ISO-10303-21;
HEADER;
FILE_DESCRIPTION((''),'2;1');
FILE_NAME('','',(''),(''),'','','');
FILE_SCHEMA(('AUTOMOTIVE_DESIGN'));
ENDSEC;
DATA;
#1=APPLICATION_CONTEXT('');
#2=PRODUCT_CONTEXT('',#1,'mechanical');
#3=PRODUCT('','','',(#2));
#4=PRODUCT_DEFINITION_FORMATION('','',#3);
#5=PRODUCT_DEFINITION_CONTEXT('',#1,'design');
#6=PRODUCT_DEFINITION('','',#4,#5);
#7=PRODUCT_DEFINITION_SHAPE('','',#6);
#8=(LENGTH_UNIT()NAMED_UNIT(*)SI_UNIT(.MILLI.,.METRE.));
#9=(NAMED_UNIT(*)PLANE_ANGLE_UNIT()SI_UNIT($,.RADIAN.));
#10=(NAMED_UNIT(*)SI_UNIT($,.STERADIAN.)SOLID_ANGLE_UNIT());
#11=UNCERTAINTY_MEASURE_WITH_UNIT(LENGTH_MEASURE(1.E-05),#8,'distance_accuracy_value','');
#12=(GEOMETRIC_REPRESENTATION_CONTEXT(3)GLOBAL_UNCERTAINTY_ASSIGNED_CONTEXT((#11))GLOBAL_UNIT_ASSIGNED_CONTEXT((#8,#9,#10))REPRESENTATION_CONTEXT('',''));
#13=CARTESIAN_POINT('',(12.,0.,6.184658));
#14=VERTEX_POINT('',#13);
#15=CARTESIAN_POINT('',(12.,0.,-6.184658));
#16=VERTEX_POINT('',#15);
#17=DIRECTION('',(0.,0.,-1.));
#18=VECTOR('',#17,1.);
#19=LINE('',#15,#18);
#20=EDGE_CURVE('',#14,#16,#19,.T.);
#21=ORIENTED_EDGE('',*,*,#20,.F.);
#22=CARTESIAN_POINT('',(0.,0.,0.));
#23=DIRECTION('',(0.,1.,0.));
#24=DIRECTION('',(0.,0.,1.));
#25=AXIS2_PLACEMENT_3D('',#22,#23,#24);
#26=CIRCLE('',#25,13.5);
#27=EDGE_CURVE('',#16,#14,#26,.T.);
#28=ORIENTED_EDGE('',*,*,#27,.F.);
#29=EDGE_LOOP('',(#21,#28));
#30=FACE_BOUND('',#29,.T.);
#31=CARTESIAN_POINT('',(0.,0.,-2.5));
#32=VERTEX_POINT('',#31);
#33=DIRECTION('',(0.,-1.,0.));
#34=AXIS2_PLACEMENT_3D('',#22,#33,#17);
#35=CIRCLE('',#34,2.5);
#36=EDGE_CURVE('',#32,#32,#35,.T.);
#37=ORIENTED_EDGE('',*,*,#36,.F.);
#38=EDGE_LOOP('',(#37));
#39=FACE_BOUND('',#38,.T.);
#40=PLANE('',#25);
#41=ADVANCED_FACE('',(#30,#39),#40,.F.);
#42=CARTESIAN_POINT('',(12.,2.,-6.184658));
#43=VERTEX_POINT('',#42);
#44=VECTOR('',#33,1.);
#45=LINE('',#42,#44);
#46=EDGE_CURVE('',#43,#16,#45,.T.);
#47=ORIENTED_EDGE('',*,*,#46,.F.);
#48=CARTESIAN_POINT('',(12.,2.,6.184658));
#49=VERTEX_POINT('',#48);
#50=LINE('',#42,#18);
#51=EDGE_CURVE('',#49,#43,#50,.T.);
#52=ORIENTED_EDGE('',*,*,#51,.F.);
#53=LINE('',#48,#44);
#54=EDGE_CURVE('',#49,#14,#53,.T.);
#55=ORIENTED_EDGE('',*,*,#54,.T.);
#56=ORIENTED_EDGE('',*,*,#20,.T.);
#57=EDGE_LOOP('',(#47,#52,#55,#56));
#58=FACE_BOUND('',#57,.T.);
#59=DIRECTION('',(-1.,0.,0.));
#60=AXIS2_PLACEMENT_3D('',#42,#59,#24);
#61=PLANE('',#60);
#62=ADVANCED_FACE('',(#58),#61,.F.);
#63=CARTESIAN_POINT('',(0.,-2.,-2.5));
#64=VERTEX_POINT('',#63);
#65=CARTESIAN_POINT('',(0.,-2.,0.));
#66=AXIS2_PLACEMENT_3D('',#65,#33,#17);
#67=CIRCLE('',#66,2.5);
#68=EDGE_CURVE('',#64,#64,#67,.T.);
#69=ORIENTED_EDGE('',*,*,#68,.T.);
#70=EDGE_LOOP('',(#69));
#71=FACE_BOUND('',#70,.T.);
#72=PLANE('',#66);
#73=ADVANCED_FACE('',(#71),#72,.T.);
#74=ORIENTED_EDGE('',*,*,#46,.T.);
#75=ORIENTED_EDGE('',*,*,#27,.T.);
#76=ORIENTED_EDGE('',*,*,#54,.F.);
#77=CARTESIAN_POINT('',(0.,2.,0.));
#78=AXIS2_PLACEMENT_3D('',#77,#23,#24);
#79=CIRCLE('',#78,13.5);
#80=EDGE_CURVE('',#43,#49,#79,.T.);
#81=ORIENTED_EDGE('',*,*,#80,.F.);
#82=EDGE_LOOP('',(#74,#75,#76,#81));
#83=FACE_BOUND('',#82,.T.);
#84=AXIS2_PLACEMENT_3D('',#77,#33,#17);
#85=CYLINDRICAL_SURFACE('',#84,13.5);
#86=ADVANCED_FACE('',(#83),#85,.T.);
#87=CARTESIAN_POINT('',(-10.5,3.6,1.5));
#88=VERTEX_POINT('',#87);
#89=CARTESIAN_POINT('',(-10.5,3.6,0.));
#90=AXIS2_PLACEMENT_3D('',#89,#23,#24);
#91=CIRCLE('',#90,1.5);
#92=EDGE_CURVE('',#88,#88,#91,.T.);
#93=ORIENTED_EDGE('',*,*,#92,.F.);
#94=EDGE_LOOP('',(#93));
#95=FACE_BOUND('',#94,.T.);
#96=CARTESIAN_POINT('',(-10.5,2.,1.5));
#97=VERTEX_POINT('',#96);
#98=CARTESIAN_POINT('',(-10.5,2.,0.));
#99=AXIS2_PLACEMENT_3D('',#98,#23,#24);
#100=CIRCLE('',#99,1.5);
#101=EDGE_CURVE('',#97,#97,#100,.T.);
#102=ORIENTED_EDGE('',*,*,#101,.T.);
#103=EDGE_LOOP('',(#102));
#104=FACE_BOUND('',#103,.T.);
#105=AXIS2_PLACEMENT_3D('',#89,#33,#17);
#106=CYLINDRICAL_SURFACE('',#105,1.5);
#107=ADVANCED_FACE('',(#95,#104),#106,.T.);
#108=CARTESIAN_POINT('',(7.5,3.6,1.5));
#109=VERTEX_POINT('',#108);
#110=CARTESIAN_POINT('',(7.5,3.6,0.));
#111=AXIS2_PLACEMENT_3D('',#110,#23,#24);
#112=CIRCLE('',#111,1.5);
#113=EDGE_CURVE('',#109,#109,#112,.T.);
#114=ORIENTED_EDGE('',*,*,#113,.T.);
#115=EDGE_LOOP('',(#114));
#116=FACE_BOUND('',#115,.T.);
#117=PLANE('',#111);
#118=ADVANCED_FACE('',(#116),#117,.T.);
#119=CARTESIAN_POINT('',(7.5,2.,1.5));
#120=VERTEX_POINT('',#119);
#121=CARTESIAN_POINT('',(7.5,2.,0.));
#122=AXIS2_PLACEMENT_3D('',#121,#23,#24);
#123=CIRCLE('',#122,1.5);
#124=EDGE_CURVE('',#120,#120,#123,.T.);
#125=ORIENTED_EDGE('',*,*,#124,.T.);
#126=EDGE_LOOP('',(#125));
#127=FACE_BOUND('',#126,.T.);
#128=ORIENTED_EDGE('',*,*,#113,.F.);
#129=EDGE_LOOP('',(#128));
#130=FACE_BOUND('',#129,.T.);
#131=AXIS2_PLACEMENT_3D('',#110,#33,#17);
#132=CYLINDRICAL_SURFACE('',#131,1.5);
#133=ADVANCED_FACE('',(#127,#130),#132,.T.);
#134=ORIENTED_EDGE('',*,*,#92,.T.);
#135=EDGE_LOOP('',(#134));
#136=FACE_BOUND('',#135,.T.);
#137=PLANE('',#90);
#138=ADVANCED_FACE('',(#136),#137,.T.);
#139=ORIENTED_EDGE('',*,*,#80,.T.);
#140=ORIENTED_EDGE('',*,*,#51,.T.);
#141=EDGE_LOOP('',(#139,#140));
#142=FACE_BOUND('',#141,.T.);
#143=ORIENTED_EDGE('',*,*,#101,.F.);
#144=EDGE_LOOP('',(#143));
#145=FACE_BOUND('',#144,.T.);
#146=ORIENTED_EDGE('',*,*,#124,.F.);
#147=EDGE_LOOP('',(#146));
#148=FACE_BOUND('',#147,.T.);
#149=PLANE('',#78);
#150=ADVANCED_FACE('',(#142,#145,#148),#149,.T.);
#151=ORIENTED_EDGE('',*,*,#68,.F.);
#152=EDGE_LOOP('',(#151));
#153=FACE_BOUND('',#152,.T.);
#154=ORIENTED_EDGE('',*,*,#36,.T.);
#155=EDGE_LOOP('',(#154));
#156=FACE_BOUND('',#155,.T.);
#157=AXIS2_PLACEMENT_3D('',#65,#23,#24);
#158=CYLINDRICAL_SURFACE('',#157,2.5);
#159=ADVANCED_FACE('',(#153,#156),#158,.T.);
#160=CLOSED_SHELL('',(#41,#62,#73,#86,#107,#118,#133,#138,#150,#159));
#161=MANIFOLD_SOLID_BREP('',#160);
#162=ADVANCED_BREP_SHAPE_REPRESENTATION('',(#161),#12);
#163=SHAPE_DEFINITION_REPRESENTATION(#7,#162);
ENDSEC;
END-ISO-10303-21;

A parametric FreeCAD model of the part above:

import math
import FreeCAD as App
import Part
import Sketcher

V = App.Vector

doc = App.newDocument("Part")
body = doc.addObject("PartDesign::Body", "Body")

# Sketch on XZ plane
sketch1 = body.newObject("Sketcher::SketchObject", "Sketch")
sketch1.AttachmentSupport = (doc.getObject("XZ_Plane"), [""])
sketch1.MapMode = "FlatFace"
sketch1.addGeometry(Part.LineSegment(V(12, 6, 0), V(12, -6, 0)), False)
sketch1.addGeometry(Part.ArcOfCircle(Part.Circle(V(0, 0, 0), V(0, 0, 1), 14), math.radians(27), math.radians(333)), False)
sketch1.addConstraint(Sketcher.Constraint("Coincident", 0, 1, 1, 1))
sketch1.addConstraint(Sketcher.Constraint("Coincident", 1, 2, 0, 2))
sketch1.addConstraint(Sketcher.Constraint("Vertical", 0))
sketch1.addConstraint(Sketcher.Constraint("Coincident", 1, 3, -1, 1))
sketch1.addConstraint(Sketcher.Constraint("Radius", 1, 13.5))
sketch1.addConstraint(Sketcher.Constraint("DistanceX", -1, 1, 0, 1, 12.0))
pad1 = body.newObject("PartDesign::Pad", "Pad")
pad1.Profile = sketch1
pad1.Length = 2
pad1.Reversed = True

# Sketch on XZ plane
sketch2 = body.newObject("Sketcher::SketchObject", "Sketch001")
sketch2.AttachmentSupport = (doc.getObject("XZ_Plane"), [""])
sketch2.MapMode = "FlatFace"
sketch2.AttachmentOffset = App.Placement(V(0, 0, -2), App.Rotation())
sketch2.addGeometry(Part.Circle(V(-10.5, 0, 0), V(0, 0, 1), 1.5), False)
sketch2.addGeometry(Part.Circle(V(7.5, 0, 0), V(0, 0, 1), 1.5), False)
sketch2.addConstraint(Sketcher.Constraint("Equal", 0, 1))
sketch2.addConstraint(Sketcher.Constraint("PointOnObject", 0, 3, -1))
sketch2.addConstraint(Sketcher.Constraint("PointOnObject", 1, 3, -1))
sketch2.addConstraint(Sketcher.Constraint("Diameter", 0, 3.0))
sketch2.addConstraint(Sketcher.Constraint("DistanceX", 0, 3, 1, 3, 18.0))
sketch2.addConstraint(Sketcher.Constraint("DistanceX", 0, 3, -1, 1, 10.5))
pad2 = body.newObject("PartDesign::Pad", "Pad001")
pad2.Profile = sketch2
pad2.Length = 1.6
pad2.Reversed = True

# Sketch on XZ plane
sketch3 = body.newObject("Sketcher::SketchObject", "Sketch002")
sketch3.AttachmentSupport = (doc.getObject("XZ_Plane"), [""])
sketch3.MapMode = "FlatFace"
sketch3.addGeometry(Part.Circle(V(0, 0, 0), V(0, 0, 1), 2.5), False)
sketch3.addConstraint(Sketcher.Constraint("Coincident", 0, 3, -1, 1))
sketch3.addConstraint(Sketcher.Constraint("Diameter", 0, 5.0))
pad3 = body.newObject("PartDesign::Pad", "Pad002")
pad3.Profile = sketch3
pad3.Length = 2

doc.recompute()
